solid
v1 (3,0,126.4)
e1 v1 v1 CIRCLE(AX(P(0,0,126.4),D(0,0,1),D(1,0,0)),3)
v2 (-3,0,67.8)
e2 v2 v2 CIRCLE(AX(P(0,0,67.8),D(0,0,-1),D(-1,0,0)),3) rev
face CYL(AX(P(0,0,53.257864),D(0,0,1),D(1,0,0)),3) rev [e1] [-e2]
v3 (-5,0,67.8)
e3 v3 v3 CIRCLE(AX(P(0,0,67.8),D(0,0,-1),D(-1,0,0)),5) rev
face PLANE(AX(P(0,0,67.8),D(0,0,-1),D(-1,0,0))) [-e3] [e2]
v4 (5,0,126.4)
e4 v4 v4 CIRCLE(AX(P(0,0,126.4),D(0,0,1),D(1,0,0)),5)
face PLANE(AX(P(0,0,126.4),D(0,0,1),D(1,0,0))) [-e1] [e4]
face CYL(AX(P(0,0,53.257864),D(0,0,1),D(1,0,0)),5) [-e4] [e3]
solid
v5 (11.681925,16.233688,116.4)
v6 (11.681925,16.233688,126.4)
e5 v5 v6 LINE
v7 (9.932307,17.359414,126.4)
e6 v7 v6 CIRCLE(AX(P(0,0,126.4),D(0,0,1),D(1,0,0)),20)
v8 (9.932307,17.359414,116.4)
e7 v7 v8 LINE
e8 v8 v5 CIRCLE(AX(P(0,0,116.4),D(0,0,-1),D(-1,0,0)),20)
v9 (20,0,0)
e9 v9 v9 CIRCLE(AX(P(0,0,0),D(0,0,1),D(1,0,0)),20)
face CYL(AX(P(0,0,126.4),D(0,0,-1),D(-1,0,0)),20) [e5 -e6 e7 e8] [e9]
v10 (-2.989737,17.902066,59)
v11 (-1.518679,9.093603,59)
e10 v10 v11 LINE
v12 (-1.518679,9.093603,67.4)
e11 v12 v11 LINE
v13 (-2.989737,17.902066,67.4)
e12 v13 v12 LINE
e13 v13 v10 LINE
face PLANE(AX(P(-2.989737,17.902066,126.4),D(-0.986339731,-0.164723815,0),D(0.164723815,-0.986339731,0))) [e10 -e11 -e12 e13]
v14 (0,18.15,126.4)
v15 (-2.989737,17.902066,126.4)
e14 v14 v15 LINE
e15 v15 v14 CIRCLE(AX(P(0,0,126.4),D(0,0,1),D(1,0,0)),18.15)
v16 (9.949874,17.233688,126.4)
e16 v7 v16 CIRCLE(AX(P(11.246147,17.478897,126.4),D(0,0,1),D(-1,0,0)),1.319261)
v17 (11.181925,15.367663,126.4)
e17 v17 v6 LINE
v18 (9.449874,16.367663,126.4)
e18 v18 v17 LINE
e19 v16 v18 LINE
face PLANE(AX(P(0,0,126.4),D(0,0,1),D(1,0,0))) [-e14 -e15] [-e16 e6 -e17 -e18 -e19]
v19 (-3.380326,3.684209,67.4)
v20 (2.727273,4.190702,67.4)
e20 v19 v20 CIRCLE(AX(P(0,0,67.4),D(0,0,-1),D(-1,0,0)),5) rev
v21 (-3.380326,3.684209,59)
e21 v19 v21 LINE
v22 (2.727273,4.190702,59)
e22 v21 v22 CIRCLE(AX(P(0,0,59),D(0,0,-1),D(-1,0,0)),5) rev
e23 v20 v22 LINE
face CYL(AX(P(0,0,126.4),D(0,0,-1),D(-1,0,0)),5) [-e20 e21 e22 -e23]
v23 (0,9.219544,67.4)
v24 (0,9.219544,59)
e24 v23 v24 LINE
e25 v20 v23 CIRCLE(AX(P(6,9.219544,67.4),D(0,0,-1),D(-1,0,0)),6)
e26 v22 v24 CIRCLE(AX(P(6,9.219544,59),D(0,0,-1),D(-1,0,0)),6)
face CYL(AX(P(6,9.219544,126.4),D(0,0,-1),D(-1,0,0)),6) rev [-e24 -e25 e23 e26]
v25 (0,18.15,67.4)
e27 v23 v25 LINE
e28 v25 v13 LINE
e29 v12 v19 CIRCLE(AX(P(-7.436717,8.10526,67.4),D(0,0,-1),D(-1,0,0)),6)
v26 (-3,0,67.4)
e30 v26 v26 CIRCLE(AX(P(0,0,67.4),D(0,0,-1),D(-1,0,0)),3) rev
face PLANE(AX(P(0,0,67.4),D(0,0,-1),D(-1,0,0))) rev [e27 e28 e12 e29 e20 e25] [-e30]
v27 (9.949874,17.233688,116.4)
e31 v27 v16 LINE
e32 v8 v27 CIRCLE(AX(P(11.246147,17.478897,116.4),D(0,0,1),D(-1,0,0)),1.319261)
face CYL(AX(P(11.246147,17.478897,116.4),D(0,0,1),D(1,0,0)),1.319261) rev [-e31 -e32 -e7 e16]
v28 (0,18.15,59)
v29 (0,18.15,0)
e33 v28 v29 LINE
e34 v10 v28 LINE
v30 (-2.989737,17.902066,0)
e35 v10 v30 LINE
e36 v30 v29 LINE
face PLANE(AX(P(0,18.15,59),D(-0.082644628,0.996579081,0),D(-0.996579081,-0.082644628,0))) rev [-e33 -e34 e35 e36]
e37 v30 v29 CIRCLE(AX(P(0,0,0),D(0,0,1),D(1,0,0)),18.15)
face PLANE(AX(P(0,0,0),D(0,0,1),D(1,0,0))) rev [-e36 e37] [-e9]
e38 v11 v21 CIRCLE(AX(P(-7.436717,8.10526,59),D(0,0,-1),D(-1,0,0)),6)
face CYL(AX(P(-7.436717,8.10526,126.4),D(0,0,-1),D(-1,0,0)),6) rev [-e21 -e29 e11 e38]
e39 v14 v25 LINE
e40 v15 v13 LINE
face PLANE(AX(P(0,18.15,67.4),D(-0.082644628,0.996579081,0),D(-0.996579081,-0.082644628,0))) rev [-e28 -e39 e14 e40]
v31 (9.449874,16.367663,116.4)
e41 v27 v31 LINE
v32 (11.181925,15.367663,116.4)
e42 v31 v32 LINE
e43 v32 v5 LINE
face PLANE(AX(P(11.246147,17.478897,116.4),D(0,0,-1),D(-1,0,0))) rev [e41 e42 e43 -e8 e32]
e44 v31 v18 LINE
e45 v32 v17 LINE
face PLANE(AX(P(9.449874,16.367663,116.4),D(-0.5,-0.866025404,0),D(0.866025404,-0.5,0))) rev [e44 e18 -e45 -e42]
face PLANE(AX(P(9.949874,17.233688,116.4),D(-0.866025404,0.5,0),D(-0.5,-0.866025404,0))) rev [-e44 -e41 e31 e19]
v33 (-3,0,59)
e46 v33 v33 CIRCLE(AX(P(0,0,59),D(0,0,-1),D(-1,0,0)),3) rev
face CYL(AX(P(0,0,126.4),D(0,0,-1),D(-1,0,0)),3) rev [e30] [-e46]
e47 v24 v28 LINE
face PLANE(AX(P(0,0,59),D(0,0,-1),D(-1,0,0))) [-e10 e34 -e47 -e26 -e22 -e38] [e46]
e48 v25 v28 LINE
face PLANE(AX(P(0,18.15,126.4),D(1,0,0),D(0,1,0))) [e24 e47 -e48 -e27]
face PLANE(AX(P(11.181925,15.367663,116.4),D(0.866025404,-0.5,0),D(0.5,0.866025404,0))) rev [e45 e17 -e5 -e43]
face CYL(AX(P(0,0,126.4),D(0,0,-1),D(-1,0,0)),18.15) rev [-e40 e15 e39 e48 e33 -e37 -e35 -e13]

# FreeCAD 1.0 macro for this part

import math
import FreeCAD as App
import Part
import Sketcher
Q = App.Units.Quantity

doc = App.newDocument("Part")
body = doc.addObject("PartDesign::Body", "Body")

# Sketch on XY plane
sketch1 = doc.addObject("Sketcher::SketchObject", "Sketch")
body.addObject(sketch1)
sketch1.AttachmentSupport = (doc.XY_Plane, [""])
sketch1.MapMode = "FlatFace"
sketch1.addGeometry([
    Part.Circle(App.Vector(0, 0, 0), App.Vector(0, 0, 1), 20),
    Part.Circle(App.Vector(0, 0, 0), App.Vector(0, 0, 1), 18),
], False)
sketch1.addConstraint([
    Sketcher.Constraint("Coincident", 0, 3, -1, 1),
    Sketcher.Constraint("Coincident", 1, 3, -1, 1),
    Sketcher.Constraint("Diameter", 0, 40.0),
    Sketcher.Constraint("Diameter", 1, 36.3),
])
pad1 = doc.addObject("PartDesign::Pad", "Pad")
body.addObject(pad1)
pad1.Profile = sketch1
pad1.Length = 126.4

# Sketch on XY plane
sketch2 = doc.addObject("Sketcher::SketchObject", "Sketch001")
body.addObject(sketch2)
sketch2.AttachmentSupport = (doc.XY_Plane, [""])
sketch2.MapMode = "FlatFace"
sketch2.addGeometry([
    Part.LineSegment(App.Vector(0, 18.1, 0), App.Vector(0, 9.2, 0)),  # 0
    Part.ArcOfCircle(Part.Circle(App.Vector(6, 9.2, 0), App.Vector(0, 0, 1), 6), math.radians(-180), math.radians(-123)),  # 1
    Part.ArcOfCircle(Part.Circle(App.Vector(0, 0, 0), App.Vector(0, 0, 1), 5), math.radians(133), math.radians(417)),  # 2
    Part.ArcOfCircle(Part.Circle(App.Vector(-7.4, 8.1, 0), App.Vector(0, 0, 1), 6), math.radians(-47), math.radians(9)),  # 3
    Part.LineSegment(App.Vector(-1.5, 9.1, 0), App.Vector(-3, 17.9, 0)),  # 4
    Part.ArcOfCircle(Part.Circle(App.Vector(0, 0, 0), App.Vector(0, 0, 1), 18.2), math.radians(90), math.radians(99.48)),  # 5
    Part.Circle(App.Vector(0, 0, 0), App.Vector(0, 0, 1), 3),  # 6
], False)
sketch2.addConstraint([
    Sketcher.Constraint("Tangent", 0, 2, 1, 1),
    Sketcher.Constraint("Tangent", 1, 2, 2, 2),
    Sketcher.Constraint("Tangent", 2, 1, 3, 1),
    Sketcher.Constraint("Tangent", 3, 2, 4, 1),
    Sketcher.Constraint("Coincident", 4, 2, 5, 2),
    Sketcher.Constraint("Coincident", 5, 1, 0, 1),
    Sketcher.Constraint("Vertical", 0),
    Sketcher.Constraint("Coincident", 2, 3, -1, 1),
    Sketcher.Constraint("Coincident", 5, 3, -1, 1),
    Sketcher.Constraint("Coincident", 6, 3, -1, 1),
    Sketcher.Constraint("Equal", 1, 3),
    Sketcher.Constraint("PointOnObject", 0, 2, -2),
    Sketcher.Constraint("Diameter", 6, 6.0),
    Sketcher.Constraint("Radius", 1, 6.0),
    Sketcher.Constraint("Radius", 2, 5.0),
    Sketcher.Constraint("Radius", 5, 18.15),
    Sketcher.Constraint("DistanceX", 2, 1, 1, 2, 6.107599),
    Sketcher.Constraint("DistanceY", 1, 2, 3, 2, 4.902901),
])
pad2 = doc.addObject("PartDesign::Pad", "Pad001")
body.addObject(pad2)
pad2.Profile = sketch2
pad2.Length = 126.4

# Sketch on XY plane
sketch3 = doc.addObject("Sketcher::SketchObject", "Sketch002")
body.addObject(sketch3)
sketch3.AttachmentSupport = (doc.XY_Plane, [""])
sketch3.MapMode = "FlatFace"
sketch3.addGeometry([
    Part.LineSegment(App.Vector(-3, 17.9, 0), App.Vector(0, 18.1, 0)),
    Part.ArcOfCircle(Part.Circle(App.Vector(0, 0, 0), App.Vector(0, 0, 1), 18.1), math.radians(99), math.radians(450)),
], False)
sketch3.addConstraint([
    Sketcher.Constraint("Coincident", 0, 1, 1, 1),
    Sketcher.Constraint("Coincident", 1, 2, 0, 2),
    Sketcher.Constraint("Coincident", 1, 3, -1, 1),
    Sketcher.Constraint("PointOnObject", 1, 2, -2),
    Sketcher.Constraint("Radius", 1, 18.15),
    Sketcher.Constraint("Distance", 0, 3.0),
])
pocket1 = doc.addObject("PartDesign::Pocket", "Pocket")
body.addObject(pocket1)
pocket1.Profile = sketch3
pocket1.Length = 59
pocket1.Reversed = True

# Sketch on XY plane
sketch4 = doc.addObject("Sketcher::SketchObject", "Sketch003")
body.addObject(sketch4)
sketch4.AttachmentSupport = (doc.XY_Plane, [""])
sketch4.MapMode = "FlatFace"
sketch4.AttachmentOffset = App.Placement(App.Vector(0, 0, 126.4), App.Rotation())
sketch4.addGeometry([
    Part.LineSegment(App.Vector(0, 18.1, 0), App.Vector(-3, 17.9, 0)),
    Part.ArcOfCircle(Part.Circle(App.Vector(0, 0, 0), App.Vector(0, 0, 1), 18.1), math.radians(99), math.radians(450)),
], False)
sketch4.addConstraint([
    Sketcher.Constraint("Coincident", 0, 1, 1, 2),
    Sketcher.Constraint("Coincident", 1, 1, 0, 2),
    Sketcher.Constraint("Coincident", 1, 3, -1, 1),
    Sketcher.Constraint("PointOnObject", 0, 1, -2),
    Sketcher.Constraint("Radius", 1, 18.15),
    Sketcher.Constraint("Distance", 0, 3.0),
])
pocket2 = doc.addObject("PartDesign::Pocket", "Pocket001")
body.addObject(pocket2)
pocket2.Profile = sketch4
pocket2.Length = 59

# Sketch on XY plane
sketch5 = doc.addObject("Sketcher::SketchObject", "Sketch004")
body.addObject(sketch5)
sketch5.AttachmentSupport = (doc.XY_Plane, [""])
sketch5.MapMode = "FlatFace"
sketch5.AttachmentOffset = App.Placement(App.Vector(0, 0, 126.4), App.Rotation())
sketch5.addGeometry([
    Part.LineSegment(App.Vector(9.9, 17.2, 0), App.Vector(9.4, 16.4, 0)),
    Part.LineSegment(App.Vector(9.4, 16.4, 0), App.Vector(11.2, 15.4, 0)),
    Part.LineSegment(App.Vector(11.2, 15.4, 0), App.Vector(11.7, 16.2, 0)),
    Part.ArcOfCircle(Part.Circle(App.Vector(11.2, 17.5, 0), App.Vector(0, 0, 1), 1.3), math.radians(-71), math.radians(191)),
], False)
sketch5.addConstraint([
    Sketcher.Constraint("Coincident", 0, 2, 1, 1),
    Sketcher.Constraint("Coincident", 1, 2, 2, 1),
    Sketcher.Constraint("Coincident", 2, 2, 3, 1),
    Sketcher.Constraint("Coincident", 3, 2, 0, 1),
    Sketcher.Constraint("Perpendicular", 0, 1),
    Sketcher.Constraint("Perpendicular", 1, 2),
    Sketcher.Constraint("Equal", 0, 2),
    Sketcher.Constraint("Angle", 0, Q("-120 deg")),
    Sketcher.Constraint("Distance", 0, 1.0),
    Sketcher.Constraint("Distance", 1, 2.0),
    Sketcher.Constraint("Radius", 3, 1.319261),
    Sketcher.Constraint("DistanceX", -1, 1, 3, 3, 11.246147),
    Sketcher.Constraint("DistanceY", -1, 1, 3, 3, 17.478897),
])
pocket3 = doc.addObject("PartDesign::Pocket", "Pocket002")
body.addObject(pocket3)
pocket3.Profile = sketch5
pocket3.Length = 10
body2 = doc.addObject("PartDesign::Body", "Body001")

# Sketch on XY plane
sketch6 = doc.addObject("Sketcher::SketchObject", "Sketch005")
body2.addObject(sketch6)
sketch6.AttachmentSupport = (doc.getObject("XY_Plane001"), [""])
sketch6.MapMode = "FlatFace"
sketch6.AttachmentOffset = App.Placement(App.Vector(0, 0, 126.4), App.Rotation())
sketch6.addGeometry([
    Part.Circle(App.Vector(0, 0, 0), App.Vector(0, 0, 1), 5),
    Part.Circle(App.Vector(0, 0, 0), App.Vector(0, 0, 1), 3),
], False)
sketch6.addConstraint([
    Sketcher.Constraint("Coincident", 0, 3, -1, 1),
    Sketcher.Constraint("Coincident", 1, 3, -1, 1),
    Sketcher.Constraint("Diameter", 0, 10.0),
    Sketcher.Constraint("Diameter", 1, 6.0),
])
pad3 = doc.addObject("PartDesign::Pad", "Pad002")
body2.addObject(pad3)
pad3.Profile = sketch6
pad3.Length = 58.6
pad3.Reversed = True

doc.recompute()
